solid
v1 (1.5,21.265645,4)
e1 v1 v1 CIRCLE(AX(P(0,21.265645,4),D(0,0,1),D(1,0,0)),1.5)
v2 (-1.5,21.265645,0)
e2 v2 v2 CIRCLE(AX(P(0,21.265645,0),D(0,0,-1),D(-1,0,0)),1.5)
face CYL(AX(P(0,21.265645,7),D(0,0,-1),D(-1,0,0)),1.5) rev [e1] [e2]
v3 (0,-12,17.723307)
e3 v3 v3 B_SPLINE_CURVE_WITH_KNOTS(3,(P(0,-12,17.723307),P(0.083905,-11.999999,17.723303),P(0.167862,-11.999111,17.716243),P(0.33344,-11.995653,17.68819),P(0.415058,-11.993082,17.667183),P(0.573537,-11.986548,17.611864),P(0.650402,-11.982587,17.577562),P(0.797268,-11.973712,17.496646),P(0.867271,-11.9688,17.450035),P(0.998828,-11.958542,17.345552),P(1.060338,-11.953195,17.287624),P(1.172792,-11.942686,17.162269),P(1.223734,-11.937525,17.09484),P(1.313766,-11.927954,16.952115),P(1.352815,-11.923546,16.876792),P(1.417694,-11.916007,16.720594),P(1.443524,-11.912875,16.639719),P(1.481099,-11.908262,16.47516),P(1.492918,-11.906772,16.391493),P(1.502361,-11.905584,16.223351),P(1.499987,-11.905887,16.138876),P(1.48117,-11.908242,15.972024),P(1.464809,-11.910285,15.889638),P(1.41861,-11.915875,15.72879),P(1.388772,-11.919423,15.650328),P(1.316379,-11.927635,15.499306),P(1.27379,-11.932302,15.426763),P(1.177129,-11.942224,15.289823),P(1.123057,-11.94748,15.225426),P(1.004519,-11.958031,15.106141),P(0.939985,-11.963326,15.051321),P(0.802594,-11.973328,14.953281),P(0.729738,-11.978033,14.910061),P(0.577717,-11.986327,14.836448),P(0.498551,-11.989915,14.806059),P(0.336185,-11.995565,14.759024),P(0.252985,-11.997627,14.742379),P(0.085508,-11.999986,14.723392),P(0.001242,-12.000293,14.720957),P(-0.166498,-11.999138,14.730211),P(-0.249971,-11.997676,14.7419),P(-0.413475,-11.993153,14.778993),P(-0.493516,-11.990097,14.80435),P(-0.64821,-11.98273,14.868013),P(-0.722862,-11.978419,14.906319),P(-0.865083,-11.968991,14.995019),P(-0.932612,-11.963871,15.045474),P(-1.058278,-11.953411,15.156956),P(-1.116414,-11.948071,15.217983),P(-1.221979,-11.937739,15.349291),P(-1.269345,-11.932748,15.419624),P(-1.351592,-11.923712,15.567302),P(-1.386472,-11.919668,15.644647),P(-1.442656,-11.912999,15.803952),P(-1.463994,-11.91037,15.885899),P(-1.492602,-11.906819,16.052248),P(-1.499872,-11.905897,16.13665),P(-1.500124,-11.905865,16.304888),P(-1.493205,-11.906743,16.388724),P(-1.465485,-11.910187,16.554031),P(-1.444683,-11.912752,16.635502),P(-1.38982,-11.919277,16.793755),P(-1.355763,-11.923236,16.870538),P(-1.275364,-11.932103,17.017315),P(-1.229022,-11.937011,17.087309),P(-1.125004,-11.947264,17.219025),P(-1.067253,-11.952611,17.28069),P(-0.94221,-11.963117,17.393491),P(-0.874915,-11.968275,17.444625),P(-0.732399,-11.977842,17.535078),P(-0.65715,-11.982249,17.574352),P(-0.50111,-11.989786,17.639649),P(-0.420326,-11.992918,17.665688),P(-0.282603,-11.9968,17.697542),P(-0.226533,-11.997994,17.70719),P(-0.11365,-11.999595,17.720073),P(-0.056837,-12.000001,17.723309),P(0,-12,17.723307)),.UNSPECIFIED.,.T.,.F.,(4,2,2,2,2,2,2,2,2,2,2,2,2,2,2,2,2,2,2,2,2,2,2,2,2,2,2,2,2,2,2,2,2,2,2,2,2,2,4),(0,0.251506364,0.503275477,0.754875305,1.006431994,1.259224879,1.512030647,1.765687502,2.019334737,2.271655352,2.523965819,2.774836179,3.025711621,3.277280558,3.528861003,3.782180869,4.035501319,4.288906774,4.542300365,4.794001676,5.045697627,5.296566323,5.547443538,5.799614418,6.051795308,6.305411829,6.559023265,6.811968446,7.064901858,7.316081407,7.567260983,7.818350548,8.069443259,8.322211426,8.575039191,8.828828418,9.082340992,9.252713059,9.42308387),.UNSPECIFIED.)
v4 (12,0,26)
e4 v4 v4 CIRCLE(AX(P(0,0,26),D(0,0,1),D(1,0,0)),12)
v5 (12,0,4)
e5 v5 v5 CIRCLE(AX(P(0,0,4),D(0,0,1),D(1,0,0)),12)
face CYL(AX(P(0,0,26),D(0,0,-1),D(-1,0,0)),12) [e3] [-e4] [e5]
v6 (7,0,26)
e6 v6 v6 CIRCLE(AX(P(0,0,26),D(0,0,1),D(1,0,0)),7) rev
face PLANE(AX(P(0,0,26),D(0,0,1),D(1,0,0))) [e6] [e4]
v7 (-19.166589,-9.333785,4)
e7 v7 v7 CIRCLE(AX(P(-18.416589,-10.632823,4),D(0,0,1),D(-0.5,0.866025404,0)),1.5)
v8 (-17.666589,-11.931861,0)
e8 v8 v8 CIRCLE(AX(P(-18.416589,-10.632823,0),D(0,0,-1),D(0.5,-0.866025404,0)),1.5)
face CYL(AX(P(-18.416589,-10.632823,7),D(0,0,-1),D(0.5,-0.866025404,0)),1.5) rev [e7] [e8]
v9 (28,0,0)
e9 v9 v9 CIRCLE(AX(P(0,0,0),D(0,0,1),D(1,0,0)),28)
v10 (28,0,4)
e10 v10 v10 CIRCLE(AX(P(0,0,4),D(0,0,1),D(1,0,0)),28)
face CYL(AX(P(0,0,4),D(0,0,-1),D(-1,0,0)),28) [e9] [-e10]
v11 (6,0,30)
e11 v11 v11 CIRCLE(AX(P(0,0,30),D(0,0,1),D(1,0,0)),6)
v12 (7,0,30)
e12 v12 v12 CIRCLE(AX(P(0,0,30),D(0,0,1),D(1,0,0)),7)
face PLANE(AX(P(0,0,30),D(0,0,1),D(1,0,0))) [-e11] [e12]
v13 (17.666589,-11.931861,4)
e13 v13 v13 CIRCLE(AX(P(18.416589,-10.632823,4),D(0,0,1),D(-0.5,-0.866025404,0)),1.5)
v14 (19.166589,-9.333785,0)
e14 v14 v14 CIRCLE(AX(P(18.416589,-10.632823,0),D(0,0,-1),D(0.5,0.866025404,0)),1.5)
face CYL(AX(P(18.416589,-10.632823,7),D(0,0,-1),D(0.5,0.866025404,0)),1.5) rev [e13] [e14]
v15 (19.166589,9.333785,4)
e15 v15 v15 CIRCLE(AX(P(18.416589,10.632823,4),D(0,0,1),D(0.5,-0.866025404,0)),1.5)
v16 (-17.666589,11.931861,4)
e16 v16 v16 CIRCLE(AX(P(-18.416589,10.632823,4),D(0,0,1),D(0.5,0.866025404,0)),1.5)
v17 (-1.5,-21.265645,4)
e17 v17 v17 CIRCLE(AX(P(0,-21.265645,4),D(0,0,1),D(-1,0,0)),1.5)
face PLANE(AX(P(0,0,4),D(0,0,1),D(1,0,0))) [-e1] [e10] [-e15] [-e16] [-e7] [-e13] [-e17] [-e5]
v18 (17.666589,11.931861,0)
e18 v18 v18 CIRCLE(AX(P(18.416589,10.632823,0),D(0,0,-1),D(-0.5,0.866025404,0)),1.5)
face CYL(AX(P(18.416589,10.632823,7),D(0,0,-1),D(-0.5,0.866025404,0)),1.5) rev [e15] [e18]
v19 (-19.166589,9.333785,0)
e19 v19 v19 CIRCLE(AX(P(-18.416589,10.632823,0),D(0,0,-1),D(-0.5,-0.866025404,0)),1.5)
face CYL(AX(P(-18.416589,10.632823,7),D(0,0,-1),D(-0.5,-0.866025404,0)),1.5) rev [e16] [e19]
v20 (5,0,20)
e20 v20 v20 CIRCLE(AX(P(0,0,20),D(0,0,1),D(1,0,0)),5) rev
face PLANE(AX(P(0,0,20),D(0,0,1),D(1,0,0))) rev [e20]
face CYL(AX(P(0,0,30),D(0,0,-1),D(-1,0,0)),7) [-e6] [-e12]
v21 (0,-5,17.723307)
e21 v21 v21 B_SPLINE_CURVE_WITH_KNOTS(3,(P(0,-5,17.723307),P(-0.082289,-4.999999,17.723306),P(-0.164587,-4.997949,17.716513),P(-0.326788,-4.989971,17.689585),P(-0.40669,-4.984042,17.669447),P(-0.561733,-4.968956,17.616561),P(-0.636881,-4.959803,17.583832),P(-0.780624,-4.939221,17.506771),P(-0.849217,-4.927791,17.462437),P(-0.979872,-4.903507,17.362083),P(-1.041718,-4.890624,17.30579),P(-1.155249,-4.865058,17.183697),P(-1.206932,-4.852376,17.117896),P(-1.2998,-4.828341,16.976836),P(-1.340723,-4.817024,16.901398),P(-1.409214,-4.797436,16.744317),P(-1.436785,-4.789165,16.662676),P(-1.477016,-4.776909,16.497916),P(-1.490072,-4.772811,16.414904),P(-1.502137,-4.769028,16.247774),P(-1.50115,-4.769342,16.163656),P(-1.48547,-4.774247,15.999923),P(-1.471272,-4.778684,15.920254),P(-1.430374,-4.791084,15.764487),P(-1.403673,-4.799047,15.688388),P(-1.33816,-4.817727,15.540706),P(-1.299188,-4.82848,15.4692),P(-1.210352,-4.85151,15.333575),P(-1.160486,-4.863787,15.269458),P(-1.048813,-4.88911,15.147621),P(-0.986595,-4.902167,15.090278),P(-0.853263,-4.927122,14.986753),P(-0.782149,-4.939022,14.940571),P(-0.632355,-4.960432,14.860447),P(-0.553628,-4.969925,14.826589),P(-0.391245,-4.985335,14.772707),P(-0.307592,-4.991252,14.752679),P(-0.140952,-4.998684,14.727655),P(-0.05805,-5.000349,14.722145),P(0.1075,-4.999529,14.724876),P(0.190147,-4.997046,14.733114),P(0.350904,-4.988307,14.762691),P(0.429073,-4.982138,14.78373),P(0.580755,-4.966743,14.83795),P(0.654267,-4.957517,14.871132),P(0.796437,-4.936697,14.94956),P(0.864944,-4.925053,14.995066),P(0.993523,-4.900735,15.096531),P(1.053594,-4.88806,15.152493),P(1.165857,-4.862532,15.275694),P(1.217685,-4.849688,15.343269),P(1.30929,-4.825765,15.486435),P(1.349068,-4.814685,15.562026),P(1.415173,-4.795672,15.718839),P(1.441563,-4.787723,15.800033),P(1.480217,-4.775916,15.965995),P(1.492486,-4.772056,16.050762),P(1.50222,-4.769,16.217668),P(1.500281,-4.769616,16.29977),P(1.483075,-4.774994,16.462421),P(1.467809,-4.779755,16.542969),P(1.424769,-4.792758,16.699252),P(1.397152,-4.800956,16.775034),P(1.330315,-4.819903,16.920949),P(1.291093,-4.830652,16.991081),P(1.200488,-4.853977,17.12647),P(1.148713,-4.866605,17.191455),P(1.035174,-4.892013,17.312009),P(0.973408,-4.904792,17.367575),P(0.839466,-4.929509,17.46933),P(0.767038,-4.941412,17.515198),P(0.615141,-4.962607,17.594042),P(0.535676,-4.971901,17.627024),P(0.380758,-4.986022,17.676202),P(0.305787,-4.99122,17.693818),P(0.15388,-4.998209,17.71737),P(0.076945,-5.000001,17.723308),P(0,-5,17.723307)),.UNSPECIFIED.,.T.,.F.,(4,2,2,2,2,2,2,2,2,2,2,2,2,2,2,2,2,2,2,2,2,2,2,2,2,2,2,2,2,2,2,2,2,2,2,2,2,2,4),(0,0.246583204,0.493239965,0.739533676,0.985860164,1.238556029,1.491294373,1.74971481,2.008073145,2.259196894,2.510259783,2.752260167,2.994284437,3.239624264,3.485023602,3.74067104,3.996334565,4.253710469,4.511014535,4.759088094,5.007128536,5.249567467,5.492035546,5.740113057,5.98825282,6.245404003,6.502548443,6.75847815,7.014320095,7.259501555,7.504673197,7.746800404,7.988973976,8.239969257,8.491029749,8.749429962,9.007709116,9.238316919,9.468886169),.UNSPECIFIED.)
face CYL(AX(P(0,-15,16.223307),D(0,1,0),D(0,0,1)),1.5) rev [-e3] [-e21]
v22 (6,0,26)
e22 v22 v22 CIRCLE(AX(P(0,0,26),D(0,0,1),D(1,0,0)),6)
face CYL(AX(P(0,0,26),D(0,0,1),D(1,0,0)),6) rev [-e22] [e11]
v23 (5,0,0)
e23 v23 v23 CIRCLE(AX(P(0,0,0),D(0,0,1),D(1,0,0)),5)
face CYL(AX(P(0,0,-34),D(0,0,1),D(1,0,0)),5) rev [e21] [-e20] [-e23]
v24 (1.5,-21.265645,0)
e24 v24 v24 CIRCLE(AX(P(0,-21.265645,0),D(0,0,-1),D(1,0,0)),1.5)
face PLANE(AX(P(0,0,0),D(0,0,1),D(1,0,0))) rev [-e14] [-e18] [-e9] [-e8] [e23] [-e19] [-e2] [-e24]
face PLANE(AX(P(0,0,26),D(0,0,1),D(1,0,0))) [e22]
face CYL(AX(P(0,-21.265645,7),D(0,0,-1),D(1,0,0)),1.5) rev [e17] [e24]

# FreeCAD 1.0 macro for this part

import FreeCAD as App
import Part
import Sketcher

V = App.Vector

doc = App.newDocument("Part")
body = doc.addObject("PartDesign::Body", "Body")

sketch1 = body.newObject("Sketcher::SketchObject", "Sketch")
sketch1.AttachmentSupport = (doc.getObject("XY_Plane"), [""])
sketch1.MapMode = "FlatFace"
sketch1.addGeometry(Part.Circle(V(0, 0, 0), V(0, 0, 1), 28), False)
sketch1.addConstraint([
    Sketcher.Constraint("Coincident", 0, 3, -1, 1),
    Sketcher.Constraint("Diameter", 0, 56.0),
])
pad1 = body.newObject("PartDesign::Pad", "Pad")
pad1.Profile = sketch1
pad1.Length = 4

sketch2 = body.newObject("Sketcher::SketchObject", "Sketch001")
sketch2.AttachmentSupport = (doc.getObject("XY_Plane"), [""])
sketch2.MapMode = "FlatFace"
sketch2.AttachmentOffset = App.Placement(V(0, 0, 4), App.Rotation())
sketch2.addGeometry(Part.Circle(V(0, 0, 0), V(0, 0, 1), 12), False)
sketch2.addConstraint([
    Sketcher.Constraint("Coincident", 0, 3, -1, 1),
    Sketcher.Constraint("Diameter", 0, 24.0),
])
pad2 = body.newObject("PartDesign::Pad", "Pad001")
pad2.Profile = sketch2
pad2.Length = 22

sketch3 = body.newObject("Sketcher::SketchObject", "Sketch002")
sketch3.AttachmentSupport = (doc.getObject("XY_Plane"), [""])
sketch3.MapMode = "FlatFace"
sketch3.AttachmentOffset = App.Placement(V(0, 0, 26), App.Rotation())
sketch3.addGeometry(Part.Circle(V(0, 0, 0), V(0, 0, 1), 5), False)
sketch3.addConstraint([
    Sketcher.Constraint("Coincident", 0, 3, -1, 1),
    Sketcher.Constraint("Diameter", 0, 10.0),
])
pocket1 = body.newObject("PartDesign::Pocket", "Pocket")
pocket1.Profile = sketch3
pocket1.Length = 60

sketch4 = body.newObject("Sketcher::SketchObject", "Sketch003")
sketch4.AttachmentSupport = (doc.getObject("XY_Plane"), [""])
sketch4.MapMode = "FlatFace"
sketch4.addGeometry(Part.Circle(V(0, 21.3, 0), V(0, 0, 1), 1.5), False)
sketch4.addConstraint([
    Sketcher.Constraint("PointOnObject", 0, 3, -2),
    Sketcher.Constraint("Diameter", 0, 3.0),
    Sketcher.Constraint("DistanceY", -1, 1, 0, 3, 21.265645),
])
pocket2 = body.newObject("PartDesign::Pocket", "Pocket001")
pocket2.Profile = sketch4
pocket2.Length = 7
pocket2.Reversed = True
doc.recompute()

polarpattern = body.newObject("PartDesign::PolarPattern", "PolarPattern")
polarpattern.Originals = [pocket2]
polarpattern.Axis = (doc.getObject("Z_Axis"), [""])
polarpattern.Angle = 360
polarpattern.Occurrences = 6
body.Tip = polarpattern

sketch5 = body.newObject("Sketcher::SketchObject", "Sketch004")
sketch5.AttachmentSupport = (doc.getObject("XZ_Plane"), [""])
sketch5.MapMode = "FlatFace"
sketch5.addGeometry(Part.Circle(V(0, 16.2, 0), V(0, 0, 1), 1.5), False)
sketch5.addConstraint([
    Sketcher.Constraint("PointOnObject", 0, 3, -2),
    Sketcher.Constraint("Diameter", 0, 3.0),
    Sketcher.Constraint("DistanceY", -1, 1, 0, 3, 16.223307),
])
pocket3 = body.newObject("PartDesign::Pocket", "Pocket002")
pocket3.Profile = sketch5
pocket3.Length = 15
pocket3.Reversed = True

sketch6 = body.newObject("Sketcher::SketchObject", "Sketch005")
sketch6.AttachmentSupport = (doc.getObject("XY_Plane"), [""])
sketch6.MapMode = "FlatFace"
sketch6.AttachmentOffset = App.Placement(V(0, 0, 20), App.Rotation())
sketch6.addGeometry(Part.Circle(V(0, 0, 0), V(0, 0, 1), 7), False)
sketch6.addConstraint([
    Sketcher.Constraint("Coincident", 0, 3, -1, 1),
    Sketcher.Constraint("Diameter", 0, 14.0),
])
pad3 = body.newObject("PartDesign::Pad", "Pad002")
pad3.Profile = sketch6
pad3.Length = 10

sketch7 = body.newObject("Sketcher::SketchObject", "Sketch006")
sketch7.AttachmentSupport = (doc.getObject("XY_Plane"), [""])
sketch7.MapMode = "FlatFace"
sketch7.AttachmentOffset = App.Placement(V(0, 0, 30), App.Rotation())
sketch7.addGeometry(Part.Circle(V(0, 0, 0), V(0, 0, 1), 6), False)
sketch7.addConstraint([
    Sketcher.Constraint("Coincident", 0, 3, -1, 1),
    Sketcher.Constraint("Diameter", 0, 12.0),
])
pocket4 = body.newObject("PartDesign::Pocket", "Pocket003")
pocket4.Profile = sketch7
pocket4.Length = 4

doc.recompute()
